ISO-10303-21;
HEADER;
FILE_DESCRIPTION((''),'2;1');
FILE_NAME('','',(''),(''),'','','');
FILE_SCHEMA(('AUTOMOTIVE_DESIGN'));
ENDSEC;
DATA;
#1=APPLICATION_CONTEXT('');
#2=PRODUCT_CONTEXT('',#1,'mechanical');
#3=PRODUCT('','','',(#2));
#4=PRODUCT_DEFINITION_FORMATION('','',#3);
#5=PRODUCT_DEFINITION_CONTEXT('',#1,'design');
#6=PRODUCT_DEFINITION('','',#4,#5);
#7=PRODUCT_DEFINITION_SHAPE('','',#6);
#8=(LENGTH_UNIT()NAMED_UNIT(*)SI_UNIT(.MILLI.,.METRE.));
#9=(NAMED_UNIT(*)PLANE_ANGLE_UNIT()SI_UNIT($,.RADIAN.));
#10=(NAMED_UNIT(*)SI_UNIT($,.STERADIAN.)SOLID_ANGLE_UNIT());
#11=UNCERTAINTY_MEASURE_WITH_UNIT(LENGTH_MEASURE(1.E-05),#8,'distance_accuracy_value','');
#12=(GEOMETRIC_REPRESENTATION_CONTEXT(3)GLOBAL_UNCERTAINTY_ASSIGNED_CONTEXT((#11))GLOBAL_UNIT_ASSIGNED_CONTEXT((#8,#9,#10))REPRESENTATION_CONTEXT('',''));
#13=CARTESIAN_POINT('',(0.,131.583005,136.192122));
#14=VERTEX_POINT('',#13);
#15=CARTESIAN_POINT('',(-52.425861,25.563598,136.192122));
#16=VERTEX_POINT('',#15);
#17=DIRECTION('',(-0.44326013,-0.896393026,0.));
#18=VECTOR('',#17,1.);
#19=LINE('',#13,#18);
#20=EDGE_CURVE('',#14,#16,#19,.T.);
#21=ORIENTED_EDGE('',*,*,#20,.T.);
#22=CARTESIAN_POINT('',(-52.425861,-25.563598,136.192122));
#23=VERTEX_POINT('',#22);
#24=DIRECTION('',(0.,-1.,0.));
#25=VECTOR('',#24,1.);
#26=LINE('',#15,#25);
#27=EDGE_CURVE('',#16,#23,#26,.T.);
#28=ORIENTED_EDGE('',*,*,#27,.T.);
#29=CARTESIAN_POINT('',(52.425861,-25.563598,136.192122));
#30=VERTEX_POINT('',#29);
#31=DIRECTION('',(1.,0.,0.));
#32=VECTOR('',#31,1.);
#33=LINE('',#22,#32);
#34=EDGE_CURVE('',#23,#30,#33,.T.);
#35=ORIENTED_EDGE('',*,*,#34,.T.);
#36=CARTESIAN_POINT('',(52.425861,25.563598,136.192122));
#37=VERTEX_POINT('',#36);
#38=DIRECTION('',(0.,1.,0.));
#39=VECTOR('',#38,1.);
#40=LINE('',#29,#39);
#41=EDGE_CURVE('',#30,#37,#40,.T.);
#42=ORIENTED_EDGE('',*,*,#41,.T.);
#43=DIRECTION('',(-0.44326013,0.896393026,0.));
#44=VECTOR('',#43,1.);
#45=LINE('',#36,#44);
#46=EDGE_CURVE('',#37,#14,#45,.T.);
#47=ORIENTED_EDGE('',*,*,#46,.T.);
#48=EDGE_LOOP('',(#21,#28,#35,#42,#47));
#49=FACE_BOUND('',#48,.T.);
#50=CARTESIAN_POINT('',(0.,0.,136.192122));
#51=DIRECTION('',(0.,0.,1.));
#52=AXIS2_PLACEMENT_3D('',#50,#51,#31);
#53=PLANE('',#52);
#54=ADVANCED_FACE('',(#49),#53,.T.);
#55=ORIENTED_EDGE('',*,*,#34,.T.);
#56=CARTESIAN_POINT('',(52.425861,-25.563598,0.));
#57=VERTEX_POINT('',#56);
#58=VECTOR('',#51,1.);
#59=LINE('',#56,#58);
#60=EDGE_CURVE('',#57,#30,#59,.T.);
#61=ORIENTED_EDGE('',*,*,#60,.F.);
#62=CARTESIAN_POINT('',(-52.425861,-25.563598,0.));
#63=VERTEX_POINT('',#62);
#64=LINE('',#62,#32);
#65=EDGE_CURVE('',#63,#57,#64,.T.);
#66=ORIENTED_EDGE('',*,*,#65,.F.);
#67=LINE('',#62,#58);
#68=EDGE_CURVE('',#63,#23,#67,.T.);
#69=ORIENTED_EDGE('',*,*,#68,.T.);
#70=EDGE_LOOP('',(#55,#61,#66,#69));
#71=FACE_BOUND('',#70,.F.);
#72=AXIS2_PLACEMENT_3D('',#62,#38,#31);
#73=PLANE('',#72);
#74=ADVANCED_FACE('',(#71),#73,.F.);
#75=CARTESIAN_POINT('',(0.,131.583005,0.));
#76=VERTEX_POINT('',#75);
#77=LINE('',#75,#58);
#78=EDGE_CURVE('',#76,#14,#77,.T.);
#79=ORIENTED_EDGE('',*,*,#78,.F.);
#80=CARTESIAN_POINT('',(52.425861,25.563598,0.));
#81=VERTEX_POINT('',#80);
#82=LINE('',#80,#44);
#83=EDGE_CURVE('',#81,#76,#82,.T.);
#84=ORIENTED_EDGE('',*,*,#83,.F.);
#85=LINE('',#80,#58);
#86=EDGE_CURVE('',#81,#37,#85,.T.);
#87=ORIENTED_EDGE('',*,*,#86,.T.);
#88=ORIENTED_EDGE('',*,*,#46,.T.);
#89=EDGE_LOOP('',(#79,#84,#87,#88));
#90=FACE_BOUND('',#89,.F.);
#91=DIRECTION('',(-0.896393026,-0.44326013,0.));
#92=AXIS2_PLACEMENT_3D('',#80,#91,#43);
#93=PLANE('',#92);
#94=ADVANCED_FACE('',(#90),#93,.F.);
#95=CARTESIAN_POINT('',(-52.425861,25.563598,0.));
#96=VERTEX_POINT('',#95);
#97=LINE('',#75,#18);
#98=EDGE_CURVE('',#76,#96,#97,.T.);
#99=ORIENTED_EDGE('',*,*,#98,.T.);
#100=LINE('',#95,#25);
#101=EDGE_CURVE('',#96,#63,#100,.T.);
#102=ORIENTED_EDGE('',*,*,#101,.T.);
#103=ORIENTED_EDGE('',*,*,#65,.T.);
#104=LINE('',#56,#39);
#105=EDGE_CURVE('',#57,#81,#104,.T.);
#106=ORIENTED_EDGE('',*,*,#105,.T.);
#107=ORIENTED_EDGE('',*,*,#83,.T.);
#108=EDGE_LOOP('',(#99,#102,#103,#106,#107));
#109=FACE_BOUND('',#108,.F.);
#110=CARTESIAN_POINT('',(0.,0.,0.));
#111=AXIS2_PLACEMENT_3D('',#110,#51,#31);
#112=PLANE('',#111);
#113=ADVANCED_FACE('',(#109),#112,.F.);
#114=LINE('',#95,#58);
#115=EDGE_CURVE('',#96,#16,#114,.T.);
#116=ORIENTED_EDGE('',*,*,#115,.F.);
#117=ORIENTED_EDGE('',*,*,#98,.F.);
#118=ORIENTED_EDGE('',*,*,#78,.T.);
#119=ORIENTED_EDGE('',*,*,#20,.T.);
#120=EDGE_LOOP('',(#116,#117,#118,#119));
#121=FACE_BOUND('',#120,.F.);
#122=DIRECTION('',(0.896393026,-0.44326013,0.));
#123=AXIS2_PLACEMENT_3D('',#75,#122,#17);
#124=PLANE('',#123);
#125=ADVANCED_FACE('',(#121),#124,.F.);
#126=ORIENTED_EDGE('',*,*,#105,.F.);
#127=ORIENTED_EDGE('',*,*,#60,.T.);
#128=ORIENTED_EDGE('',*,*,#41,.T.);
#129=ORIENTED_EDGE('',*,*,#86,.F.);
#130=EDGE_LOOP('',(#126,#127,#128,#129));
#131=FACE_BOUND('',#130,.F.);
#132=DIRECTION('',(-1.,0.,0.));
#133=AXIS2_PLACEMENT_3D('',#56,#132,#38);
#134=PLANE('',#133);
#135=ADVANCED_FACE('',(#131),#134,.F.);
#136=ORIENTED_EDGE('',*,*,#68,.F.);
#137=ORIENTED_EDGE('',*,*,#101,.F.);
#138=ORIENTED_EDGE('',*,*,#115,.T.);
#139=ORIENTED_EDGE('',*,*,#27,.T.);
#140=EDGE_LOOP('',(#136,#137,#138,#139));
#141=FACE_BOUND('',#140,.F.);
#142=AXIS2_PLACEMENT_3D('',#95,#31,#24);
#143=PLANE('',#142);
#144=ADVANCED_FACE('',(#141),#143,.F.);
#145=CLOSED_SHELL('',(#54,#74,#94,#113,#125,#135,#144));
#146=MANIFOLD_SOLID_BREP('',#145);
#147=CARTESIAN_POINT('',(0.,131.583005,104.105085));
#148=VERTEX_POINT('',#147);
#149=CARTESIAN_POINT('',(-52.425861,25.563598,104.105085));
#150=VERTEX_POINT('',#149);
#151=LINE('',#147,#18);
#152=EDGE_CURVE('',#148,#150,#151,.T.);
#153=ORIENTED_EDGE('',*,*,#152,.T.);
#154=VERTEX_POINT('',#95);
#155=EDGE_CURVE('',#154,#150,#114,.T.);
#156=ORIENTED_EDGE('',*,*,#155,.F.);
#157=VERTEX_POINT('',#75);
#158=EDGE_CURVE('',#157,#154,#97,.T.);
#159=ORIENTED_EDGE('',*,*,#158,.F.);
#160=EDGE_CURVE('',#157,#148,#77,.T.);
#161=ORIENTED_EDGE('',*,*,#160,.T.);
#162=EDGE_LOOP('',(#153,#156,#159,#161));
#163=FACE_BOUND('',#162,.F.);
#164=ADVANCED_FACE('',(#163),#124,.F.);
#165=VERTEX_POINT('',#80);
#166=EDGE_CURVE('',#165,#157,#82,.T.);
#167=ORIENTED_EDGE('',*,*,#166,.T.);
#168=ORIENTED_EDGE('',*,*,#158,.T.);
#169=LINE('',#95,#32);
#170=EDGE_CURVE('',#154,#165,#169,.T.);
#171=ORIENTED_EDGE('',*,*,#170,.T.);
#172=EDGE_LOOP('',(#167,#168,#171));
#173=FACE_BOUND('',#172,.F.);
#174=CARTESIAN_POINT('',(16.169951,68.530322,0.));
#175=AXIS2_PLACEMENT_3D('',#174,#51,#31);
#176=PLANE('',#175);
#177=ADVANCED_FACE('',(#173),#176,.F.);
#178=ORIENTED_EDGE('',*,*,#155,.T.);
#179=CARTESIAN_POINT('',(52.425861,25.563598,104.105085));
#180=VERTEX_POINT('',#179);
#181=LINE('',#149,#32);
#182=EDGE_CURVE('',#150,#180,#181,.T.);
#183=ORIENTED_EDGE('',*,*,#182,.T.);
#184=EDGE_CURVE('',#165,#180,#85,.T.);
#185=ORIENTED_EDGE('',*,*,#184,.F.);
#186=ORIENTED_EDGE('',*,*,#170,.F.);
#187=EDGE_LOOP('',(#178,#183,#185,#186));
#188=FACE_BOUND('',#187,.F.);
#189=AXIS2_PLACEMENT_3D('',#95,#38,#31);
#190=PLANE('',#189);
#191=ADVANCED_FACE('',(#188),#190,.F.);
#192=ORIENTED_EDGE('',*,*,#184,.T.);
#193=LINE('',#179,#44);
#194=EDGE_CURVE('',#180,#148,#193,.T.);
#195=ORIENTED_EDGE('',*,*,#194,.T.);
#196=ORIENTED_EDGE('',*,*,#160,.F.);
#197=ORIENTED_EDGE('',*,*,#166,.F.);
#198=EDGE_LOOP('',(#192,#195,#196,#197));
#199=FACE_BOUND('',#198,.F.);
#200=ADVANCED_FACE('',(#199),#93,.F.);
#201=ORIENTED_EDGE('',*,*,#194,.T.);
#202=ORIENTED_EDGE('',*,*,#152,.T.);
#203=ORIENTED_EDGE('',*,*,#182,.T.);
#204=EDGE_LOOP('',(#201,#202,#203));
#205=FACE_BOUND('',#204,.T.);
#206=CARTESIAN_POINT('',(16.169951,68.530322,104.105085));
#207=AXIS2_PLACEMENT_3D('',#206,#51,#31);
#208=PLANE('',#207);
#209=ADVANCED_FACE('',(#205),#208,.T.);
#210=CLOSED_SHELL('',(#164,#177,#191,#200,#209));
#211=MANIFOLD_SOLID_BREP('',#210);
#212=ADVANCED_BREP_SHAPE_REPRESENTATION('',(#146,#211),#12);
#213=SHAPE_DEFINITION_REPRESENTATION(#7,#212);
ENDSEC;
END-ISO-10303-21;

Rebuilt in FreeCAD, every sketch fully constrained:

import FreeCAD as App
import Part
import Sketcher
Q = App.Units.Quantity


def add_polygon(sketch, points):
    """Adds a closed chain of lines whose ends are joined by coincident constraints."""
    first, n = sketch.GeometryCount, len(points)
    for a, b in zip(points, points[1:] + points[:1]):
        sketch.addGeometry(Part.LineSegment(App.Vector(*a, 0), App.Vector(*b, 0)), False)
    for i in range(n):
        sketch.addConstraint(Sketcher.Constraint("Coincident", first + i, 2, first + (i + 1) % n, 1))

doc = App.newDocument("Part")
body = doc.addObject("PartDesign::Body", "Body")

sketch1 = doc.addObject("Sketcher::SketchObject", "Sketch")
body.addObject(sketch1)
sketch1.AttachmentSupport = (doc.XY_Plane, [""])
sketch1.MapMode = "FlatFace"
add_polygon(sketch1, [(52, 26), (0, 132), (-52, 26)])
sketch1.addConstraint([
    Sketcher.Constraint("Horizontal", 2),
    Sketcher.Constraint("PointOnObject", 0, 2, -2),
    Sketcher.Constraint("Equal", 0, 1),
    Sketcher.Constraint("DistanceX", 2, 1, 2, 2, Q("104.851722 mm")),
    Sketcher.Constraint("Distance", 0, Q("118.273351 mm")),
    Sketcher.Constraint("DistanceY", -1, 1, 0, 2, Q("131.583005 mm")),
])
pad1 = doc.addObject("PartDesign::Pad", "Pad")
body.addObject(pad1)
pad1.Profile = sketch1
pad1.Length = 104.105085
body2 = doc.addObject("PartDesign::Body", "Body001")

sketch2 = doc.addObject("Sketcher::SketchObject", "Sketch001")
body2.addObject(sketch2)
sketch2.AttachmentSupport = (doc.getObject("XY_Plane001"), [""])
sketch2.MapMode = "FlatFace"
add_polygon(sketch2, [(-52, -26), (52, -26), (52, 26), (0, 132), (-52, 26)])
sketch2.addConstraint([
    Sketcher.Constraint("Horizontal", 0),
    Sketcher.Constraint("Vertical", 1),
    Sketcher.Constraint("Vertical", 4),
    Sketcher.Constraint("Symmetric", 0, 2, 3, 2, -1, 1),
    Sketcher.Constraint("PointOnObject", 2, 2, -2),
    Sketcher.Constraint("Horizontal", 1, 2, 3, 2),
    Sketcher.Constraint("DistanceX", 0, 1, 0, 2, Q("104.851722 mm")),
    Sketcher.Constraint("Distance", 2, Q("118.273351 mm")),
    Sketcher.Constraint("DistanceY", 1, 1, 1, 2, Q("51.127196 mm")),
])
pad2 = doc.addObject("PartDesign::Pad", "Pad001")
body2.addObject(pad2)
pad2.Profile = sketch2
pad2.Length = 136.192122

doc.recompute()
